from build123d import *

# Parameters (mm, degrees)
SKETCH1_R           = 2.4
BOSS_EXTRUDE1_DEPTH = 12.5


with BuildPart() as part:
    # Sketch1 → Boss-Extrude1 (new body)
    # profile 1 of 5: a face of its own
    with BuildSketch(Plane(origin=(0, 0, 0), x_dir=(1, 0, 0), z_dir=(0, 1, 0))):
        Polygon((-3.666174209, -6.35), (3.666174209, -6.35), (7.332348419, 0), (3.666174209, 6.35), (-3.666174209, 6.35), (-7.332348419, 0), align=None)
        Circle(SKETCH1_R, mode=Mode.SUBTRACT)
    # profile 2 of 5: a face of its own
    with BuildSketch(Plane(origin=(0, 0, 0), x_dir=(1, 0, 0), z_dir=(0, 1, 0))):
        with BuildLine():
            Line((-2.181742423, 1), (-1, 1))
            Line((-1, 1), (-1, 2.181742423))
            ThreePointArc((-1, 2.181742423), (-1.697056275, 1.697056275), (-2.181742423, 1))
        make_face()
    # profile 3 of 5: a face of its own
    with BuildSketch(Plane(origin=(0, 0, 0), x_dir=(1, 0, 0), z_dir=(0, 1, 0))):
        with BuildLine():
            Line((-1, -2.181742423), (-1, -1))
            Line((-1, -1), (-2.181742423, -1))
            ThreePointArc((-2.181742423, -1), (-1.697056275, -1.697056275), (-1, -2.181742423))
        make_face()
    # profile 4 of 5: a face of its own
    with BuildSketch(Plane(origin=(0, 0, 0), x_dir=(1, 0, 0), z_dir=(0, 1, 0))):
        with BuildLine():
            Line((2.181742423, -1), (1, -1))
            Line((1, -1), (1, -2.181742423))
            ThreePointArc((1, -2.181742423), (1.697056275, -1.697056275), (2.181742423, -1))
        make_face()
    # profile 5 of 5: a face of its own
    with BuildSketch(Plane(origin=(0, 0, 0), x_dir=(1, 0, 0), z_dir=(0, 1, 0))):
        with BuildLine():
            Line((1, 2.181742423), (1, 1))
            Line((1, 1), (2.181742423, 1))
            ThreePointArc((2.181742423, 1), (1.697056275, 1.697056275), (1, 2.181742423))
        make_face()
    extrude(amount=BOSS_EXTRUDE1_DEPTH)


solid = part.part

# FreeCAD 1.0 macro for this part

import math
import FreeCAD as App
import Part
import Sketcher
Q = App.Units.Quantity


def add_polygon(sketch, points):
    """Adds a closed chain of lines whose ends are joined by coincident constraints."""
    first, n = sketch.GeometryCount, len(points)
    for a, b in zip(points, points[1:] + points[:1]):
        sketch.addGeometry(Part.LineSegment(App.Vector(*a, 0), App.Vector(*b, 0)), False)
    for i in range(n):
        sketch.addConstraint(Sketcher.Constraint("Coincident", first + i, 2, first + (i + 1) % n, 1))

doc = App.newDocument("Part")
body = doc.addObject("PartDesign::Body", "Body")

# Sketch on XZ plane
sketch1 = body.newObject("Sketcher::SketchObject", "Sketch")
sketch1.AttachmentSupport = (doc.getObject("XZ_Plane"), [""])
sketch1.MapMode = "FlatFace"
add_polygon(sketch1, [(-3.7, 6.3), (3.7, 6.3), (7.3, 0), (3.7, -6.3), (-3.7, -6.3), (-7.3, 0)])  # lines 0-5
sketch1.addGeometry(Part.ArcOfCircle(Part.Circle(App.Vector(0, 0, 0), App.Vector(0, 0, 1), 2.4), math.radians(-25), math.radians(25)), False)  # 6
sketch1.addGeometry(Part.LineSegment(App.Vector(2.2, 1, 0), App.Vector(1, 1, 0)), False)  # 7
sketch1.addGeometry(Part.LineSegment(App.Vector(1, 1, 0), App.Vector(1, 2.2, 0)), False)  # 8
sketch1.addGeometry(Part.ArcOfCircle(Part.Circle(App.Vector(0, 0, 0), App.Vector(0, 0, 1), 2.4), math.radians(65), math.radians(115)), False)  # 9
sketch1.addGeometry(Part.LineSegment(App.Vector(-1, 2.2, 0), App.Vector(-1, 1, 0)), False)  # 10
sketch1.addGeometry(Part.LineSegment(App.Vector(-1, 1, 0), App.Vector(-2.2, 1, 0)), False)  # 11
sketch1.addGeometry(Part.ArcOfCircle(Part.Circle(App.Vector(0, 0, 0), App.Vector(0, 0, 1), 2.4), math.radians(155), math.radians(205)), False)  # 12
sketch1.addGeometry(Part.LineSegment(App.Vector(-2.2, -1, 0), App.Vector(-1, -1, 0)), False)  # 13
sketch1.addGeometry(Part.LineSegment(App.Vector(-1, -1, 0), App.Vector(-1, -2.2, 0)), False)  # 14
sketch1.addGeometry(Part.ArcOfCircle(Part.Circle(App.Vector(0, 0, 0), App.Vector(0, 0, 1), 2.4), math.radians(-115), math.radians(-65)), False)  # 15
sketch1.addGeometry(Part.LineSegment(App.Vector(1, -2.2, 0), App.Vector(1, -1, 0)), False)  # 16
sketch1.addGeometry(Part.LineSegment(App.Vector(1, -1, 0), App.Vector(2.2, -1, 0)), False)  # 17
sketch1.addConstraint([
    Sketcher.Constraint("Coincident", 6, 2, 7, 1),
    Sketcher.Constraint("Coincident", 7, 2, 8, 1),
    Sketcher.Constraint("Coincident", 8, 2, 9, 1),
    Sketcher.Constraint("Coincident", 9, 2, 10, 1),
    Sketcher.Constraint("Coincident", 10, 2, 11, 1),
    Sketcher.Constraint("Coincident", 11, 2, 12, 1),
    Sketcher.Constraint("Coincident", 12, 2, 13, 1),
    Sketcher.Constraint("Coincident", 13, 2, 14, 1),
    Sketcher.Constraint("Coincident", 14, 2, 15, 1),
    Sketcher.Constraint("Coincident", 15, 2, 16, 1),
    Sketcher.Constraint("Coincident", 16, 2, 17, 1),
    Sketcher.Constraint("Coincident", 17, 2, 6, 1),
    Sketcher.Constraint("Horizontal", 0),
    Sketcher.Constraint("Horizontal", 3),
    Sketcher.Constraint("Horizontal", 7),
    Sketcher.Constraint("Vertical", 8),
    Sketcher.Constraint("Vertical", 10),
    Sketcher.Constraint("Horizontal", 11),
    Sketcher.Constraint("Horizontal", 13),
    Sketcher.Constraint("Vertical", 14),
    Sketcher.Constraint("Vertical", 16),
    Sketcher.Constraint("Horizontal", 17),
    Sketcher.Constraint("Coincident", 6, 3, -1, 1),
    Sketcher.Constraint("Coincident", 9, 3, -1, 1),
    Sketcher.Constraint("Coincident", 12, 3, -1, 1),
    Sketcher.Constraint("Coincident", 15, 3, -1, 1),
    Sketcher.Constraint("Equal", 6, 9),
    Sketcher.Constraint("Equal", 9, 12),
    Sketcher.Constraint("Equal", 12, 15),
    Sketcher.Constraint("Symmetric", 0, 2, 3, 2, -1, 1),
    Sketcher.Constraint("Symmetric", 1, 2, 4, 2, -1, 1),
    Sketcher.Constraint("Symmetric", 7, 2, 13, 2, -1, 1),
    Sketcher.Constraint("Symmetric", 10, 2, 16, 2, -1, 1),
    Sketcher.Constraint("Symmetric", 7, 2, 10, 2, -2),
    Sketcher.Constraint("PointOnObject", 1, 2, -1),
    Sketcher.Constraint("Parallel", 2, 5),
    Sketcher.Constraint("Vertical", 0, 2, 2, 2),
    Sketcher.Constraint("Equal", 17, 8),
    Sketcher.Constraint("Radius", 6, Q("2.4 mm")),
    Sketcher.Constraint("Angle", 1, Q("-60 deg")),
    Sketcher.Constraint("DistanceY", -1, 1, 6, 2, Q("1 mm")),
    Sketcher.Constraint("DistanceY", -1, 1, 0, 2, Q("6.35 mm")),
    Sketcher.Constraint("DistanceX", 0, 1, 0, 2, Q("7.332348 mm")),
])
pad1 = body.newObject("PartDesign::Pad", "Pad")
pad1.Profile = sketch1
pad1.Length = 12.5
pad1.Reversed = True

doc.recompute()
